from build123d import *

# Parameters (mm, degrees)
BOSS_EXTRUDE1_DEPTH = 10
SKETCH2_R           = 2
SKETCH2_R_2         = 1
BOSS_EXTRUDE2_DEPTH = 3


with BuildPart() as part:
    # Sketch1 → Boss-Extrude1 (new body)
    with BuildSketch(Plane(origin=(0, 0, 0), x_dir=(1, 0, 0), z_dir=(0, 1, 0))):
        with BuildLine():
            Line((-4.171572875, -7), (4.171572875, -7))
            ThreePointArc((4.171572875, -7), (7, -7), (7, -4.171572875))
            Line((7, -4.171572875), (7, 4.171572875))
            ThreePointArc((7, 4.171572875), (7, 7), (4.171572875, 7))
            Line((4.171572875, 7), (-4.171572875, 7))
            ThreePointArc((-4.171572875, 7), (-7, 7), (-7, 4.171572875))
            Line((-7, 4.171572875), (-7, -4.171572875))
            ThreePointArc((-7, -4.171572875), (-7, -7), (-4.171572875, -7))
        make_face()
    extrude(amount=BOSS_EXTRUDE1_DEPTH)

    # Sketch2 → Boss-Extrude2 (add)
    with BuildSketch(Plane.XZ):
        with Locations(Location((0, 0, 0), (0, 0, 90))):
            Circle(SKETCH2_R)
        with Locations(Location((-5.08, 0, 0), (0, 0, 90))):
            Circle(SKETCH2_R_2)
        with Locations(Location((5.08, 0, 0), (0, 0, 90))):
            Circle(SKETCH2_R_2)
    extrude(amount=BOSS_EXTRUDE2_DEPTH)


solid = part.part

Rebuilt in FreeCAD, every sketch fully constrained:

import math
import FreeCAD as App
import Part
import Sketcher
Q = App.Units.Quantity

doc = App.newDocument("Part")
body = doc.addObject("PartDesign::Body", "Body")

# Sketch on XZ plane
sketch1 = body.newObject("Sketcher::SketchObject", "Sketch")
sketch1.AttachmentSupport = (doc.getObject("XZ_Plane"), [""])
sketch1.MapMode = "FlatFace"
sketch1.addGeometry(Part.LineSegment(App.Vector(-4.2, 7, 0), App.Vector(4.2, 7, 0)), False)
sketch1.addGeometry(Part.ArcOfCircle(Part.Circle(App.Vector(5.6, 5.6, 0), App.Vector(0, 0, 1), 2), math.radians(-45), math.radians(135)), False)
sketch1.addGeometry(Part.LineSegment(App.Vector(7, 4.2, 0), App.Vector(7, -4.2, 0)), False)
sketch1.addGeometry(Part.ArcOfCircle(Part.Circle(App.Vector(5.6, -5.6, 0), App.Vector(0, 0, 1), 2), math.radians(-135), math.radians(45)), False)
sketch1.addGeometry(Part.LineSegment(App.Vector(4.2, -7, 0), App.Vector(-4.2, -7, 0)), False)
sketch1.addGeometry(Part.ArcOfCircle(Part.Circle(App.Vector(-5.6, -5.6, 0), App.Vector(0, 0, 1), 2), math.radians(135), math.radians(315)), False)
sketch1.addGeometry(Part.LineSegment(App.Vector(-7, -4.2, 0), App.Vector(-7, 4.2, 0)), False)
sketch1.addGeometry(Part.ArcOfCircle(Part.Circle(App.Vector(-5.6, 5.6, 0), App.Vector(0, 0, 1), 2), math.radians(45), math.radians(225)), False)
sketch1.addConstraint(Sketcher.Constraint("Coincident", 0, 2, 1, 2))
sketch1.addConstraint(Sketcher.Constraint("Coincident", 1, 1, 2, 1))
sketch1.addConstraint(Sketcher.Constraint("Coincident", 2, 2, 3, 2))
sketch1.addConstraint(Sketcher.Constraint("Coincident", 3, 1, 4, 1))
sketch1.addConstraint(Sketcher.Constraint("Coincident", 4, 2, 5, 2))
sketch1.addConstraint(Sketcher.Constraint("Coincident", 5, 1, 6, 1))
sketch1.addConstraint(Sketcher.Constraint("Coincident", 6, 2, 7, 2))
sketch1.addConstraint(Sketcher.Constraint("Coincident", 7, 1, 0, 1))
sketch1.addConstraint(Sketcher.Constraint("Horizontal", 0))
sketch1.addConstraint(Sketcher.Constraint("Vertical", 2))
sketch1.addConstraint(Sketcher.Constraint("Horizontal", 4))
sketch1.addConstraint(Sketcher.Constraint("Vertical", 6))
sketch1.addConstraint(Sketcher.Constraint("Equal", 1, 3))
sketch1.addConstraint(Sketcher.Constraint("Equal", 3, 5))
sketch1.addConstraint(Sketcher.Constraint("Equal", 5, 7))
sketch1.addConstraint(Sketcher.Constraint("Symmetric", 1, 3, 5, 3, -1, 1))
sketch1.addConstraint(Sketcher.Constraint("Symmetric", 3, 3, 7, 3, -1, 1))
sketch1.addConstraint(Sketcher.Constraint("Symmetric", 3, 3, 5, 3, -2))
sketch1.addConstraint(Sketcher.Constraint("Horizontal", 2, 2, 5, 1))
sketch1.addConstraint(Sketcher.Constraint("Vertical", 0, 2, 3, 1))
sketch1.addConstraint(Sketcher.Constraint("Equal", 4, 2))
sketch1.addConstraint(Sketcher.Constraint("Radius", 1, Q("2 mm")))
sketch1.addConstraint(Sketcher.Constraint("DistanceY", -1, 1, 0, 2, Q("7 mm")))
sketch1.addConstraint(Sketcher.Constraint("DistanceX", -1, 1, 1, 1, Q("7 mm")))
sketch1.addConstraint(Sketcher.Constraint("DistanceX", 7, 3, 0, 2, Q("9.757359 mm")))
pad1 = body.newObject("PartDesign::Pad", "Pad")
pad1.Profile = sketch1
pad1.Length = 10
pad1.Reversed = True

# Sketch on XZ plane
sketch2 = body.newObject("Sketcher::SketchObject", "Sketch001")
sketch2.AttachmentSupport = (doc.getObject("XZ_Plane"), [""])
sketch2.MapMode = "FlatFace"
sketch2.addGeometry(Part.Circle(App.Vector(0, 0, 0), App.Vector(0, 0, 1), 2), False)
sketch2.addGeometry(Part.Circle(App.Vector(-5.1, 0, 0), App.Vector(0, 0, 1), 1), False)
sketch2.addGeometry(Part.Circle(App.Vector(5.1, 0, 0), App.Vector(0, 0, 1), 1), False)
sketch2.addConstraint(Sketcher.Constraint("Coincident", 0, 3, -1, 1))
sketch2.addConstraint(Sketcher.Constraint("Equal", 1, 2))
sketch2.addConstraint(Sketcher.Constraint("Symmetric", 1, 3, 2, 3, -1, 1))
sketch2.addConstraint(Sketcher.Constraint("PointOnObject", 1, 3, -1))
sketch2.addConstraint(Sketcher.Constraint("Diameter", 0, Q("4 mm")))
sketch2.addConstraint(Sketcher.Constraint("Diameter", 1, Q("2 mm")))
sketch2.addConstraint(Sketcher.Constraint("DistanceX", 1, 3, -1, 1, Q("5.08 mm")))
pad2 = body.newObject("PartDesign::Pad", "Pad001")
pad2.Profile = sketch2
pad2.Length = 3

doc.recompute()
